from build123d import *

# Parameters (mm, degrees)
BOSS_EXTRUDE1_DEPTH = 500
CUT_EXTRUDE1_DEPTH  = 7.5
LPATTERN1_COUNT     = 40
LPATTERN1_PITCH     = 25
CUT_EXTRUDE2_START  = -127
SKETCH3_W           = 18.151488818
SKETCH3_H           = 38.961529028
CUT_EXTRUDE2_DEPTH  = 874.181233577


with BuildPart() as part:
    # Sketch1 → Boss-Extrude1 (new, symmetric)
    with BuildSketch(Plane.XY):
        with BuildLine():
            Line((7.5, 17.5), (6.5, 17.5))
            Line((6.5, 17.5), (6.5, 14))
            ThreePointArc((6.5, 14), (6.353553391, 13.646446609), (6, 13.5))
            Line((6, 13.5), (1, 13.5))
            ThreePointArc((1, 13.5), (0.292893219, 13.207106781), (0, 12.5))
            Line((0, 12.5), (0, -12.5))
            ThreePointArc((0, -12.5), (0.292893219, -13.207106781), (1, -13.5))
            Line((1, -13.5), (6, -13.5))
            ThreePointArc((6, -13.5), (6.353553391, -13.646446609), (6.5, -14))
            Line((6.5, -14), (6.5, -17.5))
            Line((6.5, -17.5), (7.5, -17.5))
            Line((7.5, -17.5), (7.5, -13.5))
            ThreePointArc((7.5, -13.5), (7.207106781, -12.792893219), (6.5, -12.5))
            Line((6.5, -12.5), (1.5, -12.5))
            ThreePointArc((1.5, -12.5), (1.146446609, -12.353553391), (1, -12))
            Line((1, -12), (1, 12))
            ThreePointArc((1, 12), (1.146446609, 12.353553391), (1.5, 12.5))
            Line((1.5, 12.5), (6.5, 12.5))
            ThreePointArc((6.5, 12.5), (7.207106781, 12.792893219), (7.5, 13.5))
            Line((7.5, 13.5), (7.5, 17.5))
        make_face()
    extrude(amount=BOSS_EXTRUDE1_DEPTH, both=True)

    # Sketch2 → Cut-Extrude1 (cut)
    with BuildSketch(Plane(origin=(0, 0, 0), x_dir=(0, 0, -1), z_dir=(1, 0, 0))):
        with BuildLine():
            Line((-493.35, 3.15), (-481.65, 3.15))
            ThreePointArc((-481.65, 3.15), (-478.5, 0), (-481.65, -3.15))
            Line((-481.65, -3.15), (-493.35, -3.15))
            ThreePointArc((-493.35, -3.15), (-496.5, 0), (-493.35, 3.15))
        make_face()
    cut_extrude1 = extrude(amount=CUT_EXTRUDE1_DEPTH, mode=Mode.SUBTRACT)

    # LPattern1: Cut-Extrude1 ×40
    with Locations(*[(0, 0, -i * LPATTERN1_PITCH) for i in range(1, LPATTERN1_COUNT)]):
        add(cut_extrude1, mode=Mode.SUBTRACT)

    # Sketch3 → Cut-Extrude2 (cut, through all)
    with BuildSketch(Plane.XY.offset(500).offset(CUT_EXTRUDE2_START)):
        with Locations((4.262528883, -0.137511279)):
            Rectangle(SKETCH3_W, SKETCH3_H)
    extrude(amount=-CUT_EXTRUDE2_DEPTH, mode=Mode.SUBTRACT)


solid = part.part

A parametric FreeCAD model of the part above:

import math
import FreeCAD as App
import Part
import Sketcher
from FreeCAD import Vector
Q = App.Units.Quantity


def add_polygon(sketch, points):
    """Adds a closed chain of lines whose ends are joined by coincident constraints."""
    first, n = sketch.GeometryCount, len(points)
    for a, b in zip(points, points[1:] + points[:1]):
        sketch.addGeometry(Part.LineSegment(App.Vector(*a, 0), App.Vector(*b, 0)), False)
    for i in range(n):
        sketch.addConstraint(Sketcher.Constraint("Coincident", first + i, 2, first + (i + 1) % n, 1))

doc = App.newDocument("Part")
params = doc.addObject("Spreadsheet::Sheet", "Params")
for row, (alias, value) in enumerate([
    ("sketch1_radius", "1 mm"),
    ("sketch1_radius2", "0.5 mm"),
    ("sketch1_width", "5 mm"),
    ("sketch1_height", "25 mm"),
    ("sketch1_height2", "4 mm"),
    ("pad1_length", "1000 mm"),
    ("sketch2_radius", "3.15 mm"),
    ("sketch2_height", "11.7 mm"),
    ("pocket1_length", "7.5 mm"),
    ("linearpattern_pitch", "25 mm"),
], start=1):
    params.set(f"A{row}", alias)
    params.set(f"B{row}", "=" + value)
    params.setAlias(f"B{row}", alias)

body = doc.addObject("PartDesign::Body", "Body")

# Sketch on XY plane
sketch1 = body.newObject("Sketcher::SketchObject", "Sketch")
sketch1.AttachmentSupport = (doc.getObject("XY_Plane"), [""])
sketch1.MapMode = "FlatFace"
sketch1.addGeometry(Part.LineSegment(Vector(7.5, 17.5, 0), Vector(6.5, 17.5, 0)), False)
sketch1.addGeometry(Part.LineSegment(Vector(6.5, 17.5, 0), Vector(6.5, 14, 0)), False)
sketch1.addGeometry(Part.ArcOfCircle(Part.Circle(Vector(6, 14, 0), Vector(0, 0, 1), 0.5), math.radians(-90), math.radians(0)), False)
sketch1.addGeometry(Part.LineSegment(Vector(6, 13.5, 0), Vector(1, 13.5, 0)), False)
sketch1.addGeometry(Part.ArcOfCircle(Part.Circle(Vector(1, 12.5, 0), Vector(0, 0, 1), 1), math.radians(90), math.radians(180)), False)
sketch1.addGeometry(Part.LineSegment(Vector(0, 12.5, 0), Vector(0, -12.5, 0)), False)
sketch1.addGeometry(Part.ArcOfCircle(Part.Circle(Vector(1, -12.5, 0), Vector(0, 0, 1), 1), math.radians(-180), math.radians(-90)), False)
sketch1.addGeometry(Part.LineSegment(Vector(1, -13.5, 0), Vector(6, -13.5, 0)), False)
sketch1.addGeometry(Part.ArcOfCircle(Part.Circle(Vector(6, -14, 0), Vector(0, 0, 1), 0.5), math.radians(0), math.radians(90)), False)
sketch1.addGeometry(Part.LineSegment(Vector(6.5, -14, 0), Vector(6.5, -17.5, 0)), False)
sketch1.addGeometry(Part.LineSegment(Vector(6.5, -17.5, 0), Vector(7.5, -17.5, 0)), False)
sketch1.addGeometry(Part.LineSegment(Vector(7.5, -17.5, 0), Vector(7.5, -13.5, 0)), False)
sketch1.addGeometry(Part.ArcOfCircle(Part.Circle(Vector(6.5, -13.5, 0), Vector(0, 0, 1), 1), math.radians(0), math.radians(90)), False)
sketch1.addGeometry(Part.LineSegment(Vector(6.5, -12.5, 0), Vector(1.5, -12.5, 0)), False)
sketch1.addGeometry(Part.ArcOfCircle(Part.Circle(Vector(1.5, -12, 0), Vector(0, 0, 1), 0.5), math.radians(180), math.radians(270)), False)
sketch1.addGeometry(Part.LineSegment(Vector(1, -12, 0), Vector(1, 12, 0)), False)
sketch1.addGeometry(Part.ArcOfCircle(Part.Circle(Vector(1.5, 12, 0), Vector(0, 0, 1), 0.5), math.radians(90), math.radians(180)), False)
sketch1.addGeometry(Part.LineSegment(Vector(1.5, 12.5, 0), Vector(6.5, 12.5, 0)), False)
sketch1.addGeometry(Part.ArcOfCircle(Part.Circle(Vector(6.5, 13.5, 0), Vector(0, 0, 1), 1), math.radians(-90), math.radians(0)), False)
sketch1.addGeometry(Part.LineSegment(Vector(7.5, 13.5, 0), Vector(7.5, 17.5, 0)), False)
sketch1.addConstraint(Sketcher.Constraint("Coincident", 0, 2, 1, 1))
sketch1.addConstraint(Sketcher.Constraint("Tangent", 1, 2, 2, 2))
sketch1.addConstraint(Sketcher.Constraint("Tangent", 2, 1, 3, 1))
sketch1.addConstraint(Sketcher.Constraint("Tangent", 3, 2, 4, 1))
sketch1.addConstraint(Sketcher.Constraint("Tangent", 4, 2, 5, 1))
sketch1.addConstraint(Sketcher.Constraint("Tangent", 5, 2, 6, 1))
sketch1.addConstraint(Sketcher.Constraint("Tangent", 6, 2, 7, 1))
sketch1.addConstraint(Sketcher.Constraint("Tangent", 7, 2, 8, 2))
sketch1.addConstraint(Sketcher.Constraint("Tangent", 8, 1, 9, 1))
sketch1.addConstraint(Sketcher.Constraint("Coincident", 9, 2, 10, 1))
sketch1.addConstraint(Sketcher.Constraint("Coincident", 10, 2, 11, 1))
sketch1.addConstraint(Sketcher.Constraint("Tangent", 11, 2, 12, 1))
sketch1.addConstraint(Sketcher.Constraint("Tangent", 12, 2, 13, 1))
sketch1.addConstraint(Sketcher.Constraint("Tangent", 13, 2, 14, 2))
sketch1.addConstraint(Sketcher.Constraint("Tangent", 14, 1, 15, 1))
sketch1.addConstraint(Sketcher.Constraint("Tangent", 15, 2, 16, 2))
sketch1.addConstraint(Sketcher.Constraint("Tangent", 16, 1, 17, 1))
sketch1.addConstraint(Sketcher.Constraint("Tangent", 17, 2, 18, 1))
sketch1.addConstraint(Sketcher.Constraint("Tangent", 18, 2, 19, 1))
sketch1.addConstraint(Sketcher.Constraint("Coincident", 19, 2, 0, 1))
sketch1.addConstraint(Sketcher.Constraint("Horizontal", 0))
sketch1.addConstraint(Sketcher.Constraint("Vertical", 1))
sketch1.addConstraint(Sketcher.Constraint("Horizontal", 3))
sketch1.addConstraint(Sketcher.Constraint("Vertical", 5))
sketch1.addConstraint(Sketcher.Constraint("Horizontal", 7))
sketch1.addConstraint(Sketcher.Constraint("Vertical", 9))
sketch1.addConstraint(Sketcher.Constraint("Horizontal", 10))
sketch1.addConstraint(Sketcher.Constraint("Vertical", 11))
sketch1.addConstraint(Sketcher.Constraint("Horizontal", 13))
sketch1.addConstraint(Sketcher.Constraint("Vertical", 15))
sketch1.addConstraint(Sketcher.Constraint("Horizontal", 17))
sketch1.addConstraint(Sketcher.Constraint("Vertical", 19))
sketch1.addConstraint(Sketcher.Constraint("Equal", 4, 6))
sketch1.addConstraint(Sketcher.Constraint("Equal", 2, 8))
sketch1.addConstraint(Sketcher.Constraint("Equal", 6, 12))
sketch1.addConstraint(Sketcher.Constraint("Equal", 8, 14))
sketch1.addConstraint(Sketcher.Constraint("Equal", 14, 16))
sketch1.addConstraint(Sketcher.Constraint("Equal", 12, 18))
sketch1.addConstraint(Sketcher.Constraint("Symmetric", 4, 2, 5, 2, -1, 1))
sketch1.addConstraint(Sketcher.Constraint("Symmetric", 12, 3, 18, 3, -1))
sketch1.addConstraint(Sketcher.Constraint("Symmetric", 0, 2, 9, 2, -1))
sketch1.addConstraint(Sketcher.Constraint("Horizontal", 18, 3, 2, 1))
sketch1.addConstraint(Sketcher.Constraint("Vertical", 18, 3, 0, 2))
sketch1.addConstraint(Sketcher.Constraint("Vertical", 6, 2, 14, 1))
sketch1.addConstraint(Sketcher.Constraint("Radius", 4, Q("1 mm")))
sketch1.addConstraint(Sketcher.Constraint("Radius", 2, Q("0.5 mm")))
sketch1.addConstraint(Sketcher.Constraint("DistanceX", 3, 2, 3, 1, Q("5 mm")))
sketch1.addConstraint(Sketcher.Constraint("DistanceY", 5, 2, 5, 1, Q("25 mm")))
sketch1.addConstraint(Sketcher.Constraint("DistanceY", 11, 1, 11, 2, Q("4 mm")))
sketch1.setExpression("Constraints[44]", "Params.sketch1_radius")
sketch1.setExpression("Constraints[45]", "Params.sketch1_radius2")
sketch1.setExpression("Constraints[46]", "Params.sketch1_width")
sketch1.setExpression("Constraints[47]", "Params.sketch1_height")
sketch1.setExpression("Constraints[48]", "Params.sketch1_height2")
pad1 = body.newObject("PartDesign::Pad", "Pad")
pad1.Profile = sketch1
pad1.setExpression("Length", "Params.pad1_length")
pad1.Midplane = True

# Sketch on YZ plane
sketch2 = body.newObject("Sketcher::SketchObject", "Sketch001")
sketch2.AttachmentSupport = (doc.getObject("YZ_Plane"), [""])
sketch2.MapMode = "FlatFace"
sketch2.addGeometry(Part.LineSegment(Vector(3.1, 481.6, 0), Vector(3.1, 493.4, 0)), False)
sketch2.addGeometry(Part.ArcOfCircle(Part.Circle(Vector(0, 493.4, 0), Vector(0, 0, 1), 3.1), math.radians(0), math.radians(180)), False)
sketch2.addGeometry(Part.LineSegment(Vector(-3.1, 493.4, 0), Vector(-3.1, 481.6, 0)), False)
sketch2.addGeometry(Part.ArcOfCircle(Part.Circle(Vector(0, 481.6, 0), Vector(0, 0, 1), 3.1), math.radians(180), math.radians(360)), False)
sketch2.addConstraint(Sketcher.Constraint("Tangent", 0, 2, 1, 1))
sketch2.addConstraint(Sketcher.Constraint("Tangent", 1, 2, 2, 1))
sketch2.addConstraint(Sketcher.Constraint("Tangent", 2, 2, 3, 1))
sketch2.addConstraint(Sketcher.Constraint("Tangent", 3, 2, 0, 1))
sketch2.addConstraint(Sketcher.Constraint("Vertical", 0))
sketch2.addConstraint(Sketcher.Constraint("Vertical", 2))
sketch2.addConstraint(Sketcher.Constraint("PointOnObject", 1, 3, -2))
sketch2.addConstraint(Sketcher.Constraint("Radius", 1, Q("3.15 mm")))
sketch2.addConstraint(Sketcher.Constraint("DistanceY", 0, 1, 0, 2, Q("11.7 mm")))
sketch2.addConstraint(Sketcher.Constraint("DistanceY", -1, 1, 1, 3, Q("493.35 mm")))
sketch2.setExpression("Constraints[7]", "Params.sketch2_radius")
sketch2.setExpression("Constraints[8]", "Params.sketch2_height")
pocket1 = body.newObject("PartDesign::Pocket", "Pocket")
pocket1.Profile = sketch2
pocket1.setExpression("Length", "Params.pocket1_length")
pocket1.Reversed = True
doc.recompute()

linearpattern = body.newObject("PartDesign::LinearPattern", "LinearPattern")
linearpattern.Originals = [pocket1]
linearpattern.Direction = (doc.getObject("Z_Axis"), [""])
linearpattern.Mode = "offset"
linearpattern.setExpression("Offset", "Params.linearpattern_pitch")
linearpattern.Occurrences = 40
linearpattern.Reversed = True
body.Tip = linearpattern

# Sketch on XY plane
sketch3 = body.newObject("Sketcher::SketchObject", "Sketch002")
sketch3.AttachmentSupport = (doc.getObject("XY_Plane"), [""])
sketch3.MapMode = "FlatFace"
sketch3.AttachmentOffset = App.Placement(Vector(0, 0, 373), App.Rotation())
add_polygon(sketch3, [(-5, 19), (-5, -20), (13, -20), (13, 19)])  # lines 0-3
sketch3.addConstraint(Sketcher.Constraint("Vertical", 0))
sketch3.addConstraint(Sketcher.Constraint("Horizontal", 1))
sketch3.addConstraint(Sketcher.Constraint("Vertical", 2))
sketch3.addConstraint(Sketcher.Constraint("Horizontal", 3))
sketch3.addConstraint(Sketcher.Constraint("DistanceX", 1, 1, 1, 2, Q("18.151489 mm")))
sketch3.addConstraint(Sketcher.Constraint("DistanceY", 0, 2, 0, 1, Q("38.961529 mm")))
sketch3.addConstraint(Sketcher.Constraint("DistanceX", 0, 2, -1, 1, Q("4.813216 mm")))
sketch3.addConstraint(Sketcher.Constraint("DistanceY", 0, 2, -1, 1, Q("19.618276 mm")))
pocket2 = body.newObject("PartDesign::Pocket", "Pocket001")
pocket2.Profile = sketch3
pocket2.Type = "ThroughAll"

doc.recompute()
